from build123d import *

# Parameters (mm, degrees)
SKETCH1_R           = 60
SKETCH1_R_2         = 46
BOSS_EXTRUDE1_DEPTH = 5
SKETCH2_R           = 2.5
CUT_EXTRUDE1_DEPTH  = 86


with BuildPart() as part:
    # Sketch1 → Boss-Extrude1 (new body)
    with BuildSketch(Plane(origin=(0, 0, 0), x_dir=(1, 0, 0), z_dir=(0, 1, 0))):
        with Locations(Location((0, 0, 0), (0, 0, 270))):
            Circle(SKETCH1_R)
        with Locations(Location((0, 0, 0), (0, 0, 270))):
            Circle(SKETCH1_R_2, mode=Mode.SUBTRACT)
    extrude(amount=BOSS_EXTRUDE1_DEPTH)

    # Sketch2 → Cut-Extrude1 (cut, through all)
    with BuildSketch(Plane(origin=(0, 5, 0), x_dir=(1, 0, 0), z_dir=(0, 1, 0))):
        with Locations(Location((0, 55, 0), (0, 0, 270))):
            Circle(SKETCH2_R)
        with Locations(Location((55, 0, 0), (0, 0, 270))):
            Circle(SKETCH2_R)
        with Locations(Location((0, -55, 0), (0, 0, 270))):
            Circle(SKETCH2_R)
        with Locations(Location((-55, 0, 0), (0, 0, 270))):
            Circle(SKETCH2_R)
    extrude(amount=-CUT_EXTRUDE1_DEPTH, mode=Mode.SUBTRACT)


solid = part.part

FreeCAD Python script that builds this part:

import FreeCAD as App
import Part
import Sketcher
from FreeCAD import Vector

doc = App.newDocument("Part")
params = doc.addObject("Spreadsheet::Sheet", "Params")
for row, (alias, value) in enumerate([
    ("sketch1_diameter", "120 mm"),
    ("sketch1_diameter2", "92 mm"),
    ("pad1_length", "5 mm"),
    ("sketch2_diameter", "5 mm"),
], start=1):
    params.set(f"A{row}", alias)
    params.set(f"B{row}", "=" + value)
    params.setAlias(f"B{row}", alias)

body = doc.addObject("PartDesign::Body", "Body")

sketch1 = body.newObject("Sketcher::SketchObject", "Sketch")
sketch1.AttachmentSupport = (doc.getObject("XZ_Plane"), [""])
sketch1.MapMode = "FlatFace"
sketch1.addGeometry([
    Part.Circle(Vector(0, 0, 0), Vector(0, 0, 1), 60),
    Part.Circle(Vector(0, 0, 0), Vector(0, 0, 1), 46),
], False)
sketch1.addConstraint([
    Sketcher.Constraint("Coincident", 0, 3, -1, 1),
    Sketcher.Constraint("Coincident", 1, 3, -1, 1),
    Sketcher.Constraint("Diameter", 0, 120.0),
    Sketcher.Constraint("Diameter", 1, 92.0),
])
sketch1.setExpression("Constraints[2]", "Params.sketch1_diameter")
sketch1.setExpression("Constraints[3]", "Params.sketch1_diameter2")
pad1 = body.newObject("PartDesign::Pad", "Pad")
pad1.Profile = sketch1
pad1.setExpression("Length", "Params.pad1_length")
pad1.Reversed = True

sketch2 = body.newObject("Sketcher::SketchObject", "Sketch001")
sketch2.AttachmentSupport = (doc.getObject("XZ_Plane"), [""])
sketch2.MapMode = "FlatFace"
sketch2.AttachmentOffset = App.Placement(Vector(0, 0, -5), App.Rotation())
sketch2.addGeometry([
    Part.Circle(Vector(0, -55, 0), Vector(0, 0, 1), 2.5),
    Part.Circle(Vector(55, 0, 0), Vector(0, 0, 1), 2.5),
    Part.Circle(Vector(0, 55, 0), Vector(0, 0, 1), 2.5),
    Part.Circle(Vector(-55, 0, 0), Vector(0, 0, 1), 2.5),
], False)
sketch2.addConstraint([
    Sketcher.Constraint("Equal", 0, 1),
    Sketcher.Constraint("Equal", 1, 2),
    Sketcher.Constraint("Equal", 2, 3),
    Sketcher.Constraint("Symmetric", 0, 3, 2, 3, -1, 1),
    Sketcher.Constraint("Symmetric", 1, 3, 3, 3, -1, 1),
    Sketcher.Constraint("PointOnObject", 0, 3, -2),
    Sketcher.Constraint("PointOnObject", 1, 3, -1),
    Sketcher.Constraint("Diameter", 0, 5.0),
    Sketcher.Constraint("DistanceY", 0, 3, -1, 1, 55.0),
    Sketcher.Constraint("DistanceX", -1, 1, 1, 3, 55.0),
])
sketch2.setExpression("Constraints[7]", "Params.sketch2_diameter")
pocket1 = body.newObject("PartDesign::Pocket", "Pocket")
pocket1.Profile = sketch2
pocket1.Type = "ThroughAll"
pocket1.Reversed = True

doc.recompute()
